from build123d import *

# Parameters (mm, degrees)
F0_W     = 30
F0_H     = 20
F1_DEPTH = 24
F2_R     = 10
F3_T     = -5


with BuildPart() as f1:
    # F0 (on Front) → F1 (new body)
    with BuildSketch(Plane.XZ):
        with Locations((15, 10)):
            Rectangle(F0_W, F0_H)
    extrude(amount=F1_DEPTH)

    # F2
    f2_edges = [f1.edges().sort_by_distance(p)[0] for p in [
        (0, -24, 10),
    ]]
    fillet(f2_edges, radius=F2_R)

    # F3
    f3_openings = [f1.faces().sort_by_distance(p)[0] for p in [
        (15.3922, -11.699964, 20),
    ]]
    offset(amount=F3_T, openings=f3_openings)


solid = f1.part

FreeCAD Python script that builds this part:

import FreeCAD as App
import Part
import Sketcher
Q = App.Units.Quantity


def edges_at(feature, points):
    """Names of the edges that pass closest to the given points."""
    edges = feature.Shape.Edges
    near = lambda p: min(range(len(edges)), key=lambda i: edges[i].distToShape(Part.Vertex(*p))[0])
    return sorted({f"Edge{near(p) + 1}" for p in points})


def faces_at(feature, points):
    """Names of the faces that lie closest to the given points."""
    faces = feature.Shape.Faces
    near = lambda p: min(range(len(faces)), key=lambda i: faces[i].distToShape(Part.Vertex(*p))[0])
    return sorted({f"Face{near(p) + 1}" for p in points})

doc = App.newDocument("Part")
params = doc.addObject("Spreadsheet::Sheet", "Params")
for row, (alias, value) in enumerate([
    ("sketch1_width", "30 mm"),
    ("sketch1_height", "20 mm"),
    ("pad1_length", "24 mm"),
    ("fillet_radius", "10 mm"),
    ("thickness_wall", "5 mm"),
], start=1):
    params.set(f"A{row}", alias)
    params.set(f"B{row}", "=" + value)
    params.setAlias(f"B{row}", alias)

body = doc.addObject("PartDesign::Body", "Body")

# Sketch on XZ plane
sketch1 = body.newObject("Sketcher::SketchObject", "Sketch")
sketch1.AttachmentSupport = (doc.getObject("XZ_Plane"), [""])
sketch1.MapMode = "FlatFace"
sketch1.addGeometry(Part.LineSegment(App.Vector(0, 20, 0), App.Vector(0, 0, 0)), False)
sketch1.addGeometry(Part.LineSegment(App.Vector(0, 0, 0), App.Vector(30, 0, 0)), False)
sketch1.addGeometry(Part.LineSegment(App.Vector(30, 0, 0), App.Vector(30, 20, 0)), False)
sketch1.addGeometry(Part.LineSegment(App.Vector(30, 20, 0), App.Vector(0, 20, 0)), False)
sketch1.addConstraint(Sketcher.Constraint("Coincident", 0, 2, 1, 1))
sketch1.addConstraint(Sketcher.Constraint("Coincident", 1, 2, 2, 1))
sketch1.addConstraint(Sketcher.Constraint("Coincident", 2, 2, 3, 1))
sketch1.addConstraint(Sketcher.Constraint("Coincident", 3, 2, 0, 1))
sketch1.addConstraint(Sketcher.Constraint("Vertical", 0))
sketch1.addConstraint(Sketcher.Constraint("Horizontal", 1))
sketch1.addConstraint(Sketcher.Constraint("Vertical", 2))
sketch1.addConstraint(Sketcher.Constraint("Horizontal", 3))
sketch1.addConstraint(Sketcher.Constraint("Coincident", 0, 2, -1, 1))
sketch1.addConstraint(Sketcher.Constraint("DistanceX", 1, 1, 1, 2, Q("30 mm")))
sketch1.addConstraint(Sketcher.Constraint("DistanceY", 0, 2, 0, 1, Q("20 mm")))
sketch1.setExpression("Constraints[9]", "Params.sketch1_width")
sketch1.setExpression("Constraints[10]", "Params.sketch1_height")
pad1 = body.newObject("PartDesign::Pad", "Pad")
pad1.Profile = sketch1
pad1.setExpression("Length", "Params.pad1_length")
doc.recompute()

fillet = body.newObject("PartDesign::Fillet", "Fillet")
fillet.Base = (pad1, edges_at(pad1, [(0, -24, 10)]))
fillet.setExpression("Radius", "Params.fillet_radius")
doc.recompute()

thickness = body.newObject("PartDesign::Thickness", "Thickness")
thickness.Base = (fillet, faces_at(fillet, [(15, -12, 20)]))
thickness.setExpression("Value", "Params.thickness_wall")
thickness.Reversed = True
thickness.Join = "Arc"

doc.recompute()
